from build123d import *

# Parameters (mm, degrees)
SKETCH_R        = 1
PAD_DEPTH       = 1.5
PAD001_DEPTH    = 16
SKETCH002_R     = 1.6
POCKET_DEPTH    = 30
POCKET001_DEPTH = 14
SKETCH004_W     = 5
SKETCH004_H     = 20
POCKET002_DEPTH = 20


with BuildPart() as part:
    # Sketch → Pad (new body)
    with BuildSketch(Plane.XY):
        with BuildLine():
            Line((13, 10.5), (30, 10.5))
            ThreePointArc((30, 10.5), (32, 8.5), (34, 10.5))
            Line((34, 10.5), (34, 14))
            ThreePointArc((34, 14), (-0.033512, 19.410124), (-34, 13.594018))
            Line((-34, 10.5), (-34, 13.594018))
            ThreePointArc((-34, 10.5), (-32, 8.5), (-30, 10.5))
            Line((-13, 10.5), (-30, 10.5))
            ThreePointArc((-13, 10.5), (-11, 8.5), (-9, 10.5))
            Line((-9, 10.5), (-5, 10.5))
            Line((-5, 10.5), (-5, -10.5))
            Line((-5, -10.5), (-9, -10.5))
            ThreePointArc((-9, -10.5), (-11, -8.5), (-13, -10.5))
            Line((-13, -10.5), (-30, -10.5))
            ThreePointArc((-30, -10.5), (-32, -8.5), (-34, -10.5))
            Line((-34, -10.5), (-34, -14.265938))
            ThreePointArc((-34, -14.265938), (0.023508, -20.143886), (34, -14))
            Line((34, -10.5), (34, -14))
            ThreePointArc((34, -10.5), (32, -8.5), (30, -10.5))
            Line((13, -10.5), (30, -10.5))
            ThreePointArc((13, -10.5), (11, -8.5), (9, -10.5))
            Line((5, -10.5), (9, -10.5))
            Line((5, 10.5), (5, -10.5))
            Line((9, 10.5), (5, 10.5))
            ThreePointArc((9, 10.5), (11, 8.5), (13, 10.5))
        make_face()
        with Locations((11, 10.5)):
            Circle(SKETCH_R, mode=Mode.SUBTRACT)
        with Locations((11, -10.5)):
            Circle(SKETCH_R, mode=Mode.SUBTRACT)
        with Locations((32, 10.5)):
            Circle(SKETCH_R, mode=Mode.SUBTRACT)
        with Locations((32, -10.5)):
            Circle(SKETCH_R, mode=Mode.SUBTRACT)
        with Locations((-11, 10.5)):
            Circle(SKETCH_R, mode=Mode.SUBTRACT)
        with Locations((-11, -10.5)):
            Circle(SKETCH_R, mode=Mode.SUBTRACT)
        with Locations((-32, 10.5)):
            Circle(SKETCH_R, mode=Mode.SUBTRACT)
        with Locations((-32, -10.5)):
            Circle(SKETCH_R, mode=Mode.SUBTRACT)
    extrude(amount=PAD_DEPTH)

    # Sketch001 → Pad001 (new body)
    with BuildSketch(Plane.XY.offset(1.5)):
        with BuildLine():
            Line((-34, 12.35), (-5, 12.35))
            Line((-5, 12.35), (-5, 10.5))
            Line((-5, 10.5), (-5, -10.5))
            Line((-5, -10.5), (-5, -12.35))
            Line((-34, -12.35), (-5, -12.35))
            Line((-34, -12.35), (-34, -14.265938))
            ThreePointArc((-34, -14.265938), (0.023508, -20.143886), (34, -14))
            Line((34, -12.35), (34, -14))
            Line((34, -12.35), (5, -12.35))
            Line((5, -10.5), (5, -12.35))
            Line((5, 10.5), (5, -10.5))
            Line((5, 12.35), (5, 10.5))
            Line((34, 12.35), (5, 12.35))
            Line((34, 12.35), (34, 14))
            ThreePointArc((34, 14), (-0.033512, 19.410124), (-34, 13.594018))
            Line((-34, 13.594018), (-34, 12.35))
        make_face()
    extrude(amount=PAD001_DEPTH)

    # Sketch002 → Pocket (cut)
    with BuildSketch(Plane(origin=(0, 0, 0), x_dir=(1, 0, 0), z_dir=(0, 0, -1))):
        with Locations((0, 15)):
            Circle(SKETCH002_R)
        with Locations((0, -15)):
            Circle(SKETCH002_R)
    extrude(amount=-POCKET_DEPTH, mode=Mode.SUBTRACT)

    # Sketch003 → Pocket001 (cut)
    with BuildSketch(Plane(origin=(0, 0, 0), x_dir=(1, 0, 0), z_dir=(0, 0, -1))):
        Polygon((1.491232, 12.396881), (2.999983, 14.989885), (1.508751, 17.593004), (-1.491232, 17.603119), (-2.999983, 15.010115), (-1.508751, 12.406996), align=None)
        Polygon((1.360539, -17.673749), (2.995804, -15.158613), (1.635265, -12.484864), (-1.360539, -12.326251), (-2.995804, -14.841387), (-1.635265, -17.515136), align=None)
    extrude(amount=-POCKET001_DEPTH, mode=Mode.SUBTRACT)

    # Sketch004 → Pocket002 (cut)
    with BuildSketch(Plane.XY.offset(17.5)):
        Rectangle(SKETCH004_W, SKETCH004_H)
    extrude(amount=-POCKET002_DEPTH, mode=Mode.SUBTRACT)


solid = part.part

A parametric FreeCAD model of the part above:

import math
import FreeCAD as App
import Part
import Sketcher

V = App.Vector


def add_polygon(sketch, points):
    """Adds a closed chain of lines whose ends are joined by coincident constraints."""
    first, n = sketch.GeometryCount, len(points)
    for a, b in zip(points, points[1:] + points[:1]):
        sketch.addGeometry(Part.LineSegment(App.Vector(*a, 0), App.Vector(*b, 0)), False)
    for i in range(n):
        sketch.addConstraint(Sketcher.Constraint("Coincident", first + i, 2, first + (i + 1) % n, 1))

doc = App.newDocument("Part")
params = doc.addObject("Spreadsheet::Sheet", "Params")
for row, (alias, value) in enumerate([
    ("sketch1_diameter", "2 mm"),
    ("sketch1_radius", "2 mm"),
    ("sketch1_width", "17 mm"),
    ("sketch1_width2", "4 mm"),
    ("sketch1_height", "21 mm"),
    ("pad1_length", "1.5 mm"),
    ("sketch2_width", "29 mm"),
    ("sketch2_height", "24.7 mm"),
    ("pad2_length", "16 mm"),
    ("sketch3_diameter", "3.2 mm"),
    ("pocket1_length", "30 mm"),
    ("sketch4_length", "3 mm"),
    ("pocket2_length", "14 mm"),
    ("sketch5_width", "5 mm"),
    ("sketch5_height", "20 mm"),
    ("pocket3_length", "20 mm"),
], start=1):
    params.set(f"A{row}", alias)
    params.set(f"B{row}", "=" + value)
    params.setAlias(f"B{row}", alias)

body = doc.addObject("PartDesign::Body", "Body")

# Sketch on XY plane
sketch1 = body.newObject("Sketcher::SketchObject", "Sketch")
sketch1.AttachmentSupport = (doc.getObject("XY_Plane"), [""])
sketch1.MapMode = "FlatFace"
sketch1.addGeometry(Part.LineSegment(V(13, 10.5, 0), V(30, 10.5, 0)), False)
sketch1.addGeometry(Part.ArcOfCircle(Part.Circle(V(32, 10.5, 0), V(0, 0, 1), 2), math.radians(180), math.radians(360)), False)
sketch1.addGeometry(Part.LineSegment(V(34, 10.5, 0), V(34, 14, 0)), False)
sketch1.addGeometry(Part.ArcOfCircle(Part.Circle(V(0.6, -86.4, 0), V(0, 0, 1), 105.8), math.radians(72), math.radians(109)), False)
sketch1.addGeometry(Part.LineSegment(V(-34, 13.6, 0), V(-34, 10.5, 0)), False)
sketch1.addGeometry(Part.ArcOfCircle(Part.Circle(V(-32, 10.5, 0), V(0, 0, 1), 2), math.radians(180), math.radians(360)), False)
sketch1.addGeometry(Part.LineSegment(V(-30, 10.5, 0), V(-13, 10.5, 0)), False)
sketch1.addGeometry(Part.ArcOfCircle(Part.Circle(V(-11, 10.5, 0), V(0, 0, 1), 2), math.radians(180), math.radians(360)), False)
sketch1.addGeometry(Part.LineSegment(V(-9, 10.5, 0), V(-5, 10.5, 0)), False)
sketch1.addGeometry(Part.LineSegment(V(-5, 10.5, 0), V(-5, -10.5, 0)), False)
sketch1.addGeometry(Part.LineSegment(V(-5, -10.5, 0), V(-9, -10.5, 0)), False)
sketch1.addGeometry(Part.ArcOfCircle(Part.Circle(V(-11, -10.5, 0), V(0, 0, 1), 2), math.radians(0), math.radians(180)), False)
sketch1.addGeometry(Part.LineSegment(V(-13, -10.5, 0), V(-30, -10.5, 0)), False)
sketch1.addGeometry(Part.ArcOfCircle(Part.Circle(V(-32, -10.5, 0), V(0, 0, 1), 2), math.radians(0), math.radians(180)), False)
sketch1.addGeometry(Part.LineSegment(V(-34, -10.5, 0), V(-34, -14.3, 0)), False)
sketch1.addGeometry(Part.ArcOfCircle(Part.Circle(V(-0.4, 79, 0), V(0, 0, 1), 99.2), math.radians(-110), math.radians(-70)), False)
sketch1.addGeometry(Part.LineSegment(V(34, -14, 0), V(34, -10.5, 0)), False)
sketch1.addGeometry(Part.ArcOfCircle(Part.Circle(V(32, -10.5, 0), V(0, 0, 1), 2), math.radians(0), math.radians(180)), False)
sketch1.addGeometry(Part.LineSegment(V(30, -10.5, 0), V(13, -10.5, 0)), False)
sketch1.addGeometry(Part.ArcOfCircle(Part.Circle(V(11, -10.5, 0), V(0, 0, 1), 2), math.radians(0), math.radians(180)), False)
sketch1.addGeometry(Part.LineSegment(V(9, -10.5, 0), V(5, -10.5, 0)), False)
sketch1.addGeometry(Part.LineSegment(V(5, -10.5, 0), V(5, 10.5, 0)), False)
sketch1.addGeometry(Part.LineSegment(V(5, 10.5, 0), V(9, 10.5, 0)), False)
sketch1.addGeometry(Part.ArcOfCircle(Part.Circle(V(11, 10.5, 0), V(0, 0, 1), 2), math.radians(180), math.radians(360)), False)
sketch1.addGeometry(Part.Circle(V(-32, -10.5, 0), V(0, 0, 1), 1), False)
sketch1.addGeometry(Part.Circle(V(-11, -10.5, 0), V(0, 0, 1), 1), False)
sketch1.addGeometry(Part.Circle(V(11, -10.5, 0), V(0, 0, 1), 1), False)
sketch1.addGeometry(Part.Circle(V(32, -10.5, 0), V(0, 0, 1), 1), False)
sketch1.addGeometry(Part.Circle(V(-32, 10.5, 0), V(0, 0, 1), 1), False)
sketch1.addGeometry(Part.Circle(V(-11, 10.5, 0), V(0, 0, 1), 1), False)
sketch1.addGeometry(Part.Circle(V(11, 10.5, 0), V(0, 0, 1), 1), False)
sketch1.addGeometry(Part.Circle(V(32, 10.5, 0), V(0, 0, 1), 1), False)
sketch1.addConstraint(Sketcher.Constraint("Coincident", 0, 2, 1, 1))
sketch1.addConstraint(Sketcher.Constraint("Tangent", 1, 2, 2, 1))
sketch1.addConstraint(Sketcher.Constraint("Coincident", 2, 2, 3, 1))
sketch1.addConstraint(Sketcher.Constraint("Coincident", 3, 2, 4, 1))
sketch1.addConstraint(Sketcher.Constraint("Tangent", 4, 2, 5, 1))
sketch1.addConstraint(Sketcher.Constraint("Coincident", 5, 2, 6, 1))
sketch1.addConstraint(Sketcher.Constraint("Coincident", 6, 2, 7, 1))
sketch1.addConstraint(Sketcher.Constraint("Coincident", 7, 2, 8, 1))
sketch1.addConstraint(Sketcher.Constraint("Coincident", 8, 2, 9, 1))
sketch1.addConstraint(Sketcher.Constraint("Coincident", 9, 2, 10, 1))
sketch1.addConstraint(Sketcher.Constraint("Coincident", 10, 2, 11, 1))
sketch1.addConstraint(Sketcher.Constraint("Coincident", 11, 2, 12, 1))
sketch1.addConstraint(Sketcher.Constraint("Coincident", 12, 2, 13, 1))
sketch1.addConstraint(Sketcher.Constraint("Tangent", 13, 2, 14, 1))
sketch1.addConstraint(Sketcher.Constraint("Coincident", 14, 2, 15, 1))
sketch1.addConstraint(Sketcher.Constraint("Coincident", 15, 2, 16, 1))
sketch1.addConstraint(Sketcher.Constraint("Tangent", 16, 2, 17, 1))
sketch1.addConstraint(Sketcher.Constraint("Coincident", 17, 2, 18, 1))
sketch1.addConstraint(Sketcher.Constraint("Coincident", 18, 2, 19, 1))
sketch1.addConstraint(Sketcher.Constraint("Coincident", 19, 2, 20, 1))
sketch1.addConstraint(Sketcher.Constraint("Coincident", 20, 2, 21, 1))
sketch1.addConstraint(Sketcher.Constraint("Coincident", 21, 2, 22, 1))
sketch1.addConstraint(Sketcher.Constraint("Coincident", 22, 2, 23, 1))
sketch1.addConstraint(Sketcher.Constraint("Coincident", 23, 2, 0, 1))
sketch1.addConstraint(Sketcher.Constraint("Horizontal", 0))
sketch1.addConstraint(Sketcher.Constraint("Vertical", 2))
sketch1.addConstraint(Sketcher.Constraint("Vertical", 4))
sketch1.addConstraint(Sketcher.Constraint("Horizontal", 6))
sketch1.addConstraint(Sketcher.Constraint("Horizontal", 8))
sketch1.addConstraint(Sketcher.Constraint("Vertical", 9))
sketch1.addConstraint(Sketcher.Constraint("Horizontal", 10))
sketch1.addConstraint(Sketcher.Constraint("Horizontal", 12))
sketch1.addConstraint(Sketcher.Constraint("Vertical", 14))
sketch1.addConstraint(Sketcher.Constraint("Vertical", 16))
sketch1.addConstraint(Sketcher.Constraint("Horizontal", 18))
sketch1.addConstraint(Sketcher.Constraint("Horizontal", 20))
sketch1.addConstraint(Sketcher.Constraint("Vertical", 21))
sketch1.addConstraint(Sketcher.Constraint("Horizontal", 22))
sketch1.addConstraint(Sketcher.Constraint("Coincident", 24, 3, 13, 3))
sketch1.addConstraint(Sketcher.Constraint("Coincident", 25, 3, 11, 3))
sketch1.addConstraint(Sketcher.Constraint("Coincident", 26, 3, 19, 3))
sketch1.addConstraint(Sketcher.Constraint("Coincident", 27, 3, 17, 3))
sketch1.addConstraint(Sketcher.Constraint("Coincident", 28, 3, 5, 3))
sketch1.addConstraint(Sketcher.Constraint("Coincident", 29, 3, 7, 3))
sketch1.addConstraint(Sketcher.Constraint("Coincident", 30, 3, 23, 3))
sketch1.addConstraint(Sketcher.Constraint("Coincident", 31, 3, 1, 3))
sketch1.addConstraint(Sketcher.Constraint("Equal", 1, 5))
sketch1.addConstraint(Sketcher.Constraint("Equal", 5, 7))
sketch1.addConstraint(Sketcher.Constraint("Equal", 7, 11))
sketch1.addConstraint(Sketcher.Constraint("Equal", 11, 13))
sketch1.addConstraint(Sketcher.Constraint("Equal", 13, 17))
sketch1.addConstraint(Sketcher.Constraint("Equal", 17, 19))
sketch1.addConstraint(Sketcher.Constraint("Equal", 19, 23))
sketch1.addConstraint(Sketcher.Constraint("Equal", 24, 25))
sketch1.addConstraint(Sketcher.Constraint("Equal", 25, 26))
sketch1.addConstraint(Sketcher.Constraint("Equal", 26, 27))
sketch1.addConstraint(Sketcher.Constraint("Equal", 27, 28))
sketch1.addConstraint(Sketcher.Constraint("Equal", 28, 29))
sketch1.addConstraint(Sketcher.Constraint("Equal", 29, 30))
sketch1.addConstraint(Sketcher.Constraint("Equal", 30, 31))
sketch1.addConstraint(Sketcher.Constraint("Symmetric", 1, 3, 13, 3, -1, 1))
sketch1.addConstraint(Sketcher.Constraint("Symmetric", 5, 3, 17, 3, -1, 1))
sketch1.addConstraint(Sketcher.Constraint("Symmetric", 7, 3, 19, 3, -1, 1))
sketch1.addConstraint(Sketcher.Constraint("Symmetric", 11, 3, 23, 3, -1, 1))
sketch1.addConstraint(Sketcher.Constraint("Symmetric", 8, 2, 20, 2, -1, 1))
sketch1.addConstraint(Sketcher.Constraint("Symmetric", 1, 3, 5, 3, -2))
sketch1.addConstraint(Sketcher.Constraint("Symmetric", 11, 3, 19, 3, -2))
sketch1.addConstraint(Sketcher.Constraint("Horizontal", 5, 3, 7, 3))
sketch1.addConstraint(Sketcher.Constraint("Horizontal", 31, 3, 0, 2))
sketch1.addConstraint(Sketcher.Constraint("Horizontal", 4, 2, 5, 2))
sketch1.addConstraint(Sketcher.Constraint("Horizontal", 6, 2, 7, 2))
sketch1.addConstraint(Sketcher.Constraint("Horizontal", 27, 3, 9, 2))
sketch1.addConstraint(Sketcher.Constraint("Horizontal", 10, 2, 11, 2))
sketch1.addConstraint(Sketcher.Constraint("Horizontal", 16, 2, 17, 2))
sketch1.addConstraint(Sketcher.Constraint("Horizontal", 8, 2, 21, 2))
sketch1.addConstraint(Sketcher.Constraint("Equal", 2, 16))
sketch1.addConstraint(Sketcher.Constraint("Diameter", 24, 2.0))
sketch1.addConstraint(Sketcher.Constraint("Radius", 1, 2.0))
sketch1.addConstraint(Sketcher.Constraint("DistanceX", 0, 1, 0, 2, 17.0))
sketch1.addConstraint(Sketcher.Constraint("DistanceX", 8, 1, 8, 2, 4.0))
sketch1.addConstraint(Sketcher.Constraint("DistanceY", 9, 2, 9, 1, 21.0))
sketch1.addConstraint(Sketcher.Constraint("DistanceY", 2, 1, 2, 2, 3.5))
sketch1.addConstraint(Sketcher.Constraint("DistanceX", -1, 1, 1, 3, 32.0))
sketch1.addConstraint(Sketcher.Constraint("Radius", 3, 105.781569))
sketch1.addConstraint(Sketcher.Constraint("Radius", 15, 99.16459))
sketch1.addConstraint(Sketcher.Constraint("DistanceY", 4, 2, 4, 1, 3.094018))
sketch1.addConstraint(Sketcher.Constraint("DistanceY", 14, 2, 14, 1, 3.765938))
sketch1.setExpression("Constraints[76]", "Params.sketch1_diameter")
sketch1.setExpression("Constraints[77]", "Params.sketch1_radius")
sketch1.setExpression("Constraints[78]", "Params.sketch1_width")
sketch1.setExpression("Constraints[79]", "Params.sketch1_width2")
sketch1.setExpression("Constraints[80]", "Params.sketch1_height")
pad1 = body.newObject("PartDesign::Pad", "Pad")
pad1.Profile = sketch1
pad1.setExpression("Length", "Params.pad1_length")

# Sketch on XY plane
sketch2 = body.newObject("Sketcher::SketchObject", "Sketch001")
sketch2.AttachmentSupport = (doc.getObject("XY_Plane"), [""])
sketch2.MapMode = "FlatFace"
sketch2.AttachmentOffset = App.Placement(V(0, 0, 1.5), App.Rotation())
sketch2.addGeometry(Part.LineSegment(V(-34, 12.3, 0), V(-5, 12.3, 0)), False)
sketch2.addGeometry(Part.LineSegment(V(-5, 12.3, 0), V(-5, -12.3, 0)), False)
sketch2.addGeometry(Part.LineSegment(V(-5, -12.3, 0), V(-34, -12.3, 0)), False)
sketch2.addGeometry(Part.LineSegment(V(-34, -12.3, 0), V(-34, -14.3, 0)), False)
sketch2.addGeometry(Part.ArcOfCircle(Part.Circle(V(-0.4, 79, 0), V(0, 0, 1), 99.2), math.radians(-110), math.radians(-70)), False)
sketch2.addGeometry(Part.LineSegment(V(34, -14, 0), V(34, -12.3, 0)), False)
sketch2.addGeometry(Part.LineSegment(V(34, -12.3, 0), V(5, -12.3, 0)), False)
sketch2.addGeometry(Part.LineSegment(V(5, -12.3, 0), V(5, 12.3, 0)), False)
sketch2.addGeometry(Part.LineSegment(V(5, 12.3, 0), V(34, 12.3, 0)), False)
sketch2.addGeometry(Part.LineSegment(V(34, 12.3, 0), V(34, 14, 0)), False)
sketch2.addGeometry(Part.ArcOfCircle(Part.Circle(V(0.6, -86.4, 0), V(0, 0, 1), 105.8), math.radians(72), math.radians(109)), False)
sketch2.addGeometry(Part.LineSegment(V(-34, 13.6, 0), V(-34, 12.3, 0)), False)
sketch2.addConstraint(Sketcher.Constraint("Coincident", 0, 2, 1, 1))
sketch2.addConstraint(Sketcher.Constraint("Coincident", 1, 2, 2, 1))
sketch2.addConstraint(Sketcher.Constraint("Coincident", 2, 2, 3, 1))
sketch2.addConstraint(Sketcher.Constraint("Coincident", 3, 2, 4, 1))
sketch2.addConstraint(Sketcher.Constraint("Coincident", 4, 2, 5, 1))
sketch2.addConstraint(Sketcher.Constraint("Coincident", 5, 2, 6, 1))
sketch2.addConstraint(Sketcher.Constraint("Coincident", 6, 2, 7, 1))
sketch2.addConstraint(Sketcher.Constraint("Coincident", 7, 2, 8, 1))
sketch2.addConstraint(Sketcher.Constraint("Coincident", 8, 2, 9, 1))
sketch2.addConstraint(Sketcher.Constraint("Coincident", 9, 2, 10, 1))
sketch2.addConstraint(Sketcher.Constraint("Coincident", 10, 2, 11, 1))
sketch2.addConstraint(Sketcher.Constraint("Coincident", 11, 2, 0, 1))
sketch2.addConstraint(Sketcher.Constraint("Horizontal", 0))
sketch2.addConstraint(Sketcher.Constraint("Vertical", 1))
sketch2.addConstraint(Sketcher.Constraint("Horizontal", 2))
sketch2.addConstraint(Sketcher.Constraint("Vertical", 3))
sketch2.addConstraint(Sketcher.Constraint("Vertical", 5))
sketch2.addConstraint(Sketcher.Constraint("Horizontal", 6))
sketch2.addConstraint(Sketcher.Constraint("Vertical", 7))
sketch2.addConstraint(Sketcher.Constraint("Horizontal", 8))
sketch2.addConstraint(Sketcher.Constraint("Vertical", 9))
sketch2.addConstraint(Sketcher.Constraint("Vertical", 11))
sketch2.addConstraint(Sketcher.Constraint("Symmetric", 0, 2, 6, 2, -1, 1))
sketch2.addConstraint(Sketcher.Constraint("Symmetric", 2, 2, 8, 2, -1, 1))
sketch2.addConstraint(Sketcher.Constraint("Symmetric", 2, 2, 5, 2, -2))
sketch2.addConstraint(Sketcher.Constraint("Vertical", 3, 2, 10, 2))
sketch2.addConstraint(Sketcher.Constraint("Equal", 5, 9))
sketch2.addConstraint(Sketcher.Constraint("DistanceX", 0, 1, 0, 2, 29.0))
sketch2.addConstraint(Sketcher.Constraint("DistanceY", 1, 2, 1, 1, 24.7))
sketch2.addConstraint(Sketcher.Constraint("DistanceX", 0, 2, -1, 1, 5.0))
sketch2.addConstraint(Sketcher.Constraint("DistanceY", 4, 2, -1, 1, 14.0))
sketch2.addConstraint(Sketcher.Constraint("Radius", 4, 99.16459))
sketch2.addConstraint(Sketcher.Constraint("Radius", 10, 105.781569))
sketch2.addConstraint(Sketcher.Constraint("DistanceY", 3, 2, 3, 1, 1.915938))
sketch2.addConstraint(Sketcher.Constraint("DistanceY", 11, 2, 11, 1, 1.244018))
sketch2.setExpression("Constraints[27]", "Params.sketch2_width")
sketch2.setExpression("Constraints[28]", "Params.sketch2_height")
pad2 = body.newObject("PartDesign::Pad", "Pad001")
pad2.Profile = sketch2
pad2.setExpression("Length", "Params.pad2_length")

# Sketch on XY plane
sketch3 = body.newObject("Sketcher::SketchObject", "Sketch002")
sketch3.AttachmentSupport = (doc.getObject("XY_Plane"), [""])
sketch3.MapMode = "FlatFace"
sketch3.addGeometry(Part.Circle(V(0, -15, 0), V(0, 0, 1), 1.6), False)
sketch3.addGeometry(Part.Circle(V(0, 15, 0), V(0, 0, 1), 1.6), False)
sketch3.addConstraint(Sketcher.Constraint("Equal", 0, 1))
sketch3.addConstraint(Sketcher.Constraint("Symmetric", 0, 3, 1, 3, -1, 1))
sketch3.addConstraint(Sketcher.Constraint("PointOnObject", 0, 3, -2))
sketch3.addConstraint(Sketcher.Constraint("Diameter", 0, 3.2))
sketch3.addConstraint(Sketcher.Constraint("DistanceY", 0, 3, -1, 1, 15.0))
sketch3.setExpression("Constraints[3]", "Params.sketch3_diameter")
pocket1 = body.newObject("PartDesign::Pocket", "Pocket")
pocket1.Profile = sketch3
pocket1.setExpression("Length", "Params.pocket1_length")
pocket1.Reversed = True

# Sketch on XY plane
sketch4 = body.newObject("Sketcher::SketchObject", "Sketch003")
sketch4.AttachmentSupport = (doc.getObject("XY_Plane"), [""])
sketch4.MapMode = "FlatFace"
add_polygon(sketch4, [(1.5, -12.4), (3, -15), (1.5, -17.6), (-1.5, -17.6), (-3, -15), (-1.5, -12.4)])  # lines 0-5
add_polygon(sketch4, [(1.4, 17.7), (3, 15.2), (1.6, 12.5), (-1.4, 12.3), (-3, 14.8), (-1.6, 17.5)])  # lines 6-11
sketch4.addConstraint(Sketcher.Constraint("Parallel", 0, 3))
sketch4.addConstraint(Sketcher.Constraint("Parallel", 1, 4))
sketch4.addConstraint(Sketcher.Constraint("Parallel", 2, 5))
sketch4.addConstraint(Sketcher.Constraint("Parallel", 6, 9))
sketch4.addConstraint(Sketcher.Constraint("Parallel", 7, 10))
sketch4.addConstraint(Sketcher.Constraint("Parallel", 8, 11))
sketch4.addConstraint(Sketcher.Constraint("Equal", 0, 1))
sketch4.addConstraint(Sketcher.Constraint("Equal", 1, 2))
sketch4.addConstraint(Sketcher.Constraint("Equal", 2, 3))
sketch4.addConstraint(Sketcher.Constraint("Equal", 5, 6))
sketch4.addConstraint(Sketcher.Constraint("Equal", 6, 7))
sketch4.addConstraint(Sketcher.Constraint("Equal", 7, 8))
sketch4.addConstraint(Sketcher.Constraint("Equal", 8, 9))
sketch4.addConstraint(Sketcher.Constraint("Distance", 0, 3.0))
sketch4.addConstraint(Sketcher.Constraint("DistanceX", 4, 2, 1, 2, 3.017502))
sketch4.addConstraint(Sketcher.Constraint("DistanceY", 0, 2, 6, 2, 30.148498))
sketch4.addConstraint(Sketcher.Constraint("DistanceY", 8, 2, 11, 2, 5.347498))
sketch4.addConstraint(Sketcher.Constraint("DistanceX", -1, 1, 1, 2, 1.508751))
sketch4.addConstraint(Sketcher.Constraint("DistanceY", 2, 2, -1, 1, 17.603119))
sketch4.addConstraint(Sketcher.Constraint("DistanceY", 5, 2, -1, 1, 12.396881))
sketch4.addConstraint(Sketcher.Constraint("DistanceX", 8, 2, -1, 1, 1.360539))
sketch4.addConstraint(Sketcher.Constraint("DistanceY", -1, 1, 8, 2, 12.326251))
sketch4.addConstraint(Sketcher.Constraint("DistanceX", -1, 1, 11, 2, 1.360539))
sketch4.addConstraint(Sketcher.Constraint("DistanceX", 1, 2, 0, 2, 1.491232))
sketch4.setExpression("Constraints[25]", "Params.sketch4_length")
pocket2 = body.newObject("PartDesign::Pocket", "Pocket001")
pocket2.Profile = sketch4
pocket2.setExpression("Length", "Params.pocket2_length")
pocket2.Reversed = True

# Sketch on XY plane
sketch5 = body.newObject("Sketcher::SketchObject", "Sketch004")
sketch5.AttachmentSupport = (doc.getObject("XY_Plane"), [""])
sketch5.MapMode = "FlatFace"
sketch5.AttachmentOffset = App.Placement(V(0, 0, 17.5), App.Rotation())
add_polygon(sketch5, [(-2, 10), (-2, -10), (2, -10), (2, 10)])  # lines 0-3
sketch5.addConstraint(Sketcher.Constraint("Vertical", 0))
sketch5.addConstraint(Sketcher.Constraint("Horizontal", 1))
sketch5.addConstraint(Sketcher.Constraint("Vertical", 2))
sketch5.addConstraint(Sketcher.Constraint("Horizontal", 3))
sketch5.addConstraint(Sketcher.Constraint("Symmetric", 0, 2, 2, 2, -1, 1))
sketch5.addConstraint(Sketcher.Constraint("DistanceX", 1, 1, 1, 2, 5.0))
sketch5.addConstraint(Sketcher.Constraint("DistanceY", 0, 2, 0, 1, 20.0))
sketch5.setExpression("Constraints[9]", "Params.sketch5_width")
sketch5.setExpression("Constraints[10]", "Params.sketch5_height")
pocket3 = body.newObject("PartDesign::Pocket", "Pocket002")
pocket3.Profile = sketch5
pocket3.setExpression("Length", "Params.pocket3_length")

doc.recompute()
